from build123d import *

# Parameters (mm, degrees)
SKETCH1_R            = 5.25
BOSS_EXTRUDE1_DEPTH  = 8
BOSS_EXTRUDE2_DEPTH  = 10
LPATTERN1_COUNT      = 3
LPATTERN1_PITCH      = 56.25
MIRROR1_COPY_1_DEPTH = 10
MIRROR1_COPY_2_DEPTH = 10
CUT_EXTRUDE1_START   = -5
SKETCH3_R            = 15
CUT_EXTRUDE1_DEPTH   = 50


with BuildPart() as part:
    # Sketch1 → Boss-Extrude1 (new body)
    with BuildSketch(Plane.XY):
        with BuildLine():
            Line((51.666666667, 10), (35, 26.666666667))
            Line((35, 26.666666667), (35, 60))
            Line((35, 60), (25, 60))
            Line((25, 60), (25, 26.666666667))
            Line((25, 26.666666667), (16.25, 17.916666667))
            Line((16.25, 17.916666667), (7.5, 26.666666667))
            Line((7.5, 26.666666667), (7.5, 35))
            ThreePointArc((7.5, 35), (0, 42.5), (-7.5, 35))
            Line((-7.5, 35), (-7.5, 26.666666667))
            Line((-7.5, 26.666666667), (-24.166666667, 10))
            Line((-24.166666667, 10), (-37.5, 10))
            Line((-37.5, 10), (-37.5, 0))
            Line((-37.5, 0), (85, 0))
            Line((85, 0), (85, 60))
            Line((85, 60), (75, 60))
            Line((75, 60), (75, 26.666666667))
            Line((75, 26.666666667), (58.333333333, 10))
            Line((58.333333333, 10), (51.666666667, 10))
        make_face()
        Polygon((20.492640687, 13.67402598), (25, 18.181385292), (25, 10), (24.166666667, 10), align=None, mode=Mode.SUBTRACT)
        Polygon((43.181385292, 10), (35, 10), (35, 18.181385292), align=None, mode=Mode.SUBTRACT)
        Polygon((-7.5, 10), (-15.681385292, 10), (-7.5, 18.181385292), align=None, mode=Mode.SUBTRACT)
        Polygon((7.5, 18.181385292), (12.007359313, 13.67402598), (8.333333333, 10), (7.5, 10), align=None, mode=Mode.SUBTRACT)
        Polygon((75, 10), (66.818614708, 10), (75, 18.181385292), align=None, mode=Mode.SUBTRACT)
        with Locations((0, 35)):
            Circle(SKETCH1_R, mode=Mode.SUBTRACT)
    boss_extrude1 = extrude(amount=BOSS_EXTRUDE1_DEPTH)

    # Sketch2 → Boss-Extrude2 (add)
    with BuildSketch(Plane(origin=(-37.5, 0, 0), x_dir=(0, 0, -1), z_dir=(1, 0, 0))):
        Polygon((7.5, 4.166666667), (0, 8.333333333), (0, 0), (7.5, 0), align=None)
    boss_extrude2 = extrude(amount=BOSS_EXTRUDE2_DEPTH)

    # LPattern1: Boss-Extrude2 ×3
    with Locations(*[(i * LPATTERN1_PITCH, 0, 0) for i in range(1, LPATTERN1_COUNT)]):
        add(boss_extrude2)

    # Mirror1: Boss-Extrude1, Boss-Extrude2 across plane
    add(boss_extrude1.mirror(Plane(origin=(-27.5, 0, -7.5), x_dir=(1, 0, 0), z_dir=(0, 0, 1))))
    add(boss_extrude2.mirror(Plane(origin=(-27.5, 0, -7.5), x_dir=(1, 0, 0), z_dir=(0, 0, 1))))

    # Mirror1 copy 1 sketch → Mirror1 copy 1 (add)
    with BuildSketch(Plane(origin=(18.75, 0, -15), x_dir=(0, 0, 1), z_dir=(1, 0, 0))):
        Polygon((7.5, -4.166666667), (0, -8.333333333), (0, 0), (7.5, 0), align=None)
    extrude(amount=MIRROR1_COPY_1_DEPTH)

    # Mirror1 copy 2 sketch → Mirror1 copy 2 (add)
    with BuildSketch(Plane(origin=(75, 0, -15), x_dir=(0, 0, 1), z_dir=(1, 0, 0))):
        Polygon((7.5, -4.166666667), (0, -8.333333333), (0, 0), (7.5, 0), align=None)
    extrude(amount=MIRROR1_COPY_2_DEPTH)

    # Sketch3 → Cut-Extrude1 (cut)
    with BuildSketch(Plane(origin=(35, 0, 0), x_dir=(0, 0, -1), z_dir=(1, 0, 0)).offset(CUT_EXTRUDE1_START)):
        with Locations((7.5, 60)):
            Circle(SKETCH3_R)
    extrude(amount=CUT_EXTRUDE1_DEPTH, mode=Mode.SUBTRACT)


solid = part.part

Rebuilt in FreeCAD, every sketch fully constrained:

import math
import FreeCAD as App
import Part
import Sketcher
from FreeCAD import Vector
Q = App.Units.Quantity

doc = App.newDocument("Part")
body = doc.addObject("PartDesign::Body", "Body")

sketch1 = doc.addObject("Sketcher::SketchObject", "Sketch")
body.addObject(sketch1)
sketch1.AttachmentSupport = (doc.XY_Plane, [""])
sketch1.MapMode = "FlatFace"
sketch1.addGeometry([
    Part.LineSegment(Vector(51.7, 10, 0), Vector(35, 26.7, 0)),
    Part.LineSegment(Vector(35, 26.7, 0), Vector(35, 60, 0)),
    Part.LineSegment(Vector(35, 60, 0), Vector(25, 60, 0)),
    Part.LineSegment(Vector(25, 60, 0), Vector(25, 26.7, 0)),
    Part.LineSegment(Vector(25, 26.7, 0), Vector(16.2, 17.9, 0)),
    Part.LineSegment(Vector(16.2, 17.9, 0), Vector(7.5, 26.7, 0)),
    Part.LineSegment(Vector(7.5, 26.7, 0), Vector(7.5, 35, 0)),
    Part.ArcOfCircle(Part.Circle(Vector(0, 35, 0), Vector(0, 0, 1), 7.5), math.radians(0), math.radians(180)),
    Part.LineSegment(Vector(-7.5, 35, 0), Vector(-7.5, 26.7, 0)),
    Part.LineSegment(Vector(-7.5, 26.7, 0), Vector(-24.2, 10, 0)),
    Part.LineSegment(Vector(-24.2, 10, 0), Vector(-37.5, 10, 0)),
    Part.LineSegment(Vector(-37.5, 10, 0), Vector(-37.5, 0, 0)),
    Part.LineSegment(Vector(-37.5, 0, 0), Vector(85, 0, 0)),
    Part.LineSegment(Vector(85, 0, 0), Vector(85, 60, 0)),
    Part.LineSegment(Vector(85, 60, 0), Vector(75, 60, 0)),
    Part.LineSegment(Vector(75, 60, 0), Vector(75, 26.7, 0)),
    Part.LineSegment(Vector(75, 26.7, 0), Vector(58.3, 10, 0)),
    Part.LineSegment(Vector(58.3, 10, 0), Vector(51.7, 10, 0)),
    Part.LineSegment(Vector(-7.5, 18.2, 0), Vector(-7.5, 10, 0)),
    Part.LineSegment(Vector(-7.5, 10, 0), Vector(-15.7, 10, 0)),
    Part.LineSegment(Vector(-15.7, 10, 0), Vector(-7.5, 18.2, 0)),
    Part.LineSegment(Vector(7.5, 10, 0), Vector(7.5, 18.2, 0)),
    Part.LineSegment(Vector(7.5, 18.2, 0), Vector(12, 13.7, 0)),
    Part.LineSegment(Vector(12, 13.7, 0), Vector(8.3, 10, 0)),
    Part.LineSegment(Vector(8.3, 10, 0), Vector(7.5, 10, 0)),
    Part.LineSegment(Vector(24.2, 10, 0), Vector(20.5, 13.7, 0)),
    Part.LineSegment(Vector(20.5, 13.7, 0), Vector(25, 18.2, 0)),
    Part.LineSegment(Vector(25, 18.2, 0), Vector(25, 10, 0)),
    Part.LineSegment(Vector(25, 10, 0), Vector(24.2, 10, 0)),
    Part.LineSegment(Vector(35, 18.2, 0), Vector(43.2, 10, 0)),
    Part.LineSegment(Vector(43.2, 10, 0), Vector(35, 10, 0)),
    Part.LineSegment(Vector(35, 10, 0), Vector(35, 18.2, 0)),
    Part.LineSegment(Vector(75, 18.2, 0), Vector(75, 10, 0)),
    Part.LineSegment(Vector(75, 10, 0), Vector(66.8, 10, 0)),
    Part.LineSegment(Vector(66.8, 10, 0), Vector(75, 18.2, 0)),
    Part.Circle(Vector(0, 35, 0), Vector(0, 0, 1), 5.2),
], False)
sketch1.addConstraint([
    Sketcher.Constraint("Coincident", 0, 2, 1, 1),
    Sketcher.Constraint("Coincident", 1, 2, 2, 1),
    Sketcher.Constraint("Coincident", 2, 2, 3, 1),
    Sketcher.Constraint("Coincident", 3, 2, 4, 1),
    Sketcher.Constraint("Coincident", 4, 2, 5, 1),
    Sketcher.Constraint("Coincident", 5, 2, 6, 1),
    Sketcher.Constraint("Tangent", 6, 2, 7, 1),
    Sketcher.Constraint("Tangent", 7, 2, 8, 1),
    Sketcher.Constraint("Coincident", 8, 2, 9, 1),
    Sketcher.Constraint("Coincident", 9, 2, 10, 1),
    Sketcher.Constraint("Coincident", 10, 2, 11, 1),
    Sketcher.Constraint("Coincident", 11, 2, 12, 1),
    Sketcher.Constraint("Coincident", 12, 2, 13, 1),
    Sketcher.Constraint("Coincident", 13, 2, 14, 1),
    Sketcher.Constraint("Coincident", 14, 2, 15, 1),
    Sketcher.Constraint("Coincident", 15, 2, 16, 1),
    Sketcher.Constraint("Coincident", 16, 2, 17, 1),
    Sketcher.Constraint("Coincident", 17, 2, 0, 1),
    Sketcher.Constraint("Coincident", 18, 2, 19, 1),
    Sketcher.Constraint("Coincident", 19, 2, 20, 1),
    Sketcher.Constraint("Coincident", 20, 2, 18, 1),
    Sketcher.Constraint("Coincident", 21, 2, 22, 1),
    Sketcher.Constraint("Coincident", 22, 2, 23, 1),
    Sketcher.Constraint("Coincident", 23, 2, 24, 1),
    Sketcher.Constraint("Coincident", 24, 2, 21, 1),
    Sketcher.Constraint("Coincident", 25, 2, 26, 1),
    Sketcher.Constraint("Coincident", 26, 2, 27, 1),
    Sketcher.Constraint("Coincident", 27, 2, 28, 1),
    Sketcher.Constraint("Coincident", 28, 2, 25, 1),
    Sketcher.Constraint("Coincident", 29, 2, 30, 1),
    Sketcher.Constraint("Coincident", 30, 2, 31, 1),
    Sketcher.Constraint("Coincident", 31, 2, 29, 1),
    Sketcher.Constraint("Coincident", 32, 2, 33, 1),
    Sketcher.Constraint("Coincident", 33, 2, 34, 1),
    Sketcher.Constraint("Coincident", 34, 2, 32, 1),
    Sketcher.Constraint("Vertical", 1),
    Sketcher.Constraint("Horizontal", 2),
    Sketcher.Constraint("Vertical", 3),
    Sketcher.Constraint("Vertical", 6),
    Sketcher.Constraint("Vertical", 8),
    Sketcher.Constraint("Horizontal", 10),
    Sketcher.Constraint("Vertical", 11),
    Sketcher.Constraint("Horizontal", 12),
    Sketcher.Constraint("Vertical", 13),
    Sketcher.Constraint("Horizontal", 14),
    Sketcher.Constraint("Vertical", 15),
    Sketcher.Constraint("Horizontal", 17),
    Sketcher.Constraint("Vertical", 18),
    Sketcher.Constraint("Horizontal", 19),
    Sketcher.Constraint("Vertical", 21),
    Sketcher.Constraint("Horizontal", 24),
    Sketcher.Constraint("Vertical", 27),
    Sketcher.Constraint("Horizontal", 28),
    Sketcher.Constraint("Horizontal", 30),
    Sketcher.Constraint("Vertical", 31),
    Sketcher.Constraint("Vertical", 32),
    Sketcher.Constraint("Horizontal", 33),
    Sketcher.Constraint("Coincident", 35, 3, 7, 3),
    Sketcher.Constraint("Symmetric", 5, 2, 8, 2, -2),
    Sketcher.Constraint("Symmetric", 20, 2, 21, 2, -2),
    Sketcher.Constraint("Symmetric", 9, 2, 28, 2, -2),
    Sketcher.Constraint("PointOnObject", 11, 2, -1),
    Sketcher.Constraint("Perpendicular", 0, 4),
    Sketcher.Constraint("Perpendicular", 4, 5),
    Sketcher.Constraint("Perpendicular", 5, 9),
    Sketcher.Constraint("Parallel", 9, 16),
    Sketcher.Constraint("Parallel", 16, 20),
    Sketcher.Constraint("Perpendicular", 20, 22),
    Sketcher.Constraint("Perpendicular", 22, 23),
    Sketcher.Constraint("Perpendicular", 23, 25),
    Sketcher.Constraint("Perpendicular", 25, 26),
    Sketcher.Constraint("Perpendicular", 26, 29),
    Sketcher.Constraint("Perpendicular", 29, 34),
    Sketcher.Constraint("Horizontal", 0, 2, 3, 2),
    Sketcher.Constraint("Horizontal", 3, 2, 5, 2),
    Sketcher.Constraint("Horizontal", 2, 2, 13, 2),
    Sketcher.Constraint("Horizontal", 8, 2, 15, 2),
    Sketcher.Constraint("Horizontal", 10, 2, 16, 2),
    Sketcher.Constraint("Horizontal", 17, 2, 18, 2),
    Sketcher.Constraint("Horizontal", 19, 2, 23, 2),
    Sketcher.Constraint("Horizontal", 22, 2, 25, 2),
    Sketcher.Constraint("Horizontal", 21, 2, 26, 2),
    Sketcher.Constraint("Horizontal", 28, 2, 29, 2),
    Sketcher.Constraint("Horizontal", 26, 2, 31, 2),
    Sketcher.Constraint("Horizontal", 30, 2, 32, 2),
    Sketcher.Constraint("Horizontal", 31, 2, 34, 2),
    Sketcher.Constraint("Vertical", 8, 2, 18, 2),
    Sketcher.Constraint("Vertical", 3, 2, 26, 2),
    Sketcher.Constraint("Vertical", 1, 2, 30, 2),
    Sketcher.Constraint("Vertical", 15, 2, 32, 2),
    Sketcher.Constraint("Equal", 2, 14),
    Sketcher.Constraint("Equal", 24, 28),
    Sketcher.Constraint("Equal", 14, 11),
    Sketcher.Constraint("Diameter", 35, Q("10.5 mm")),
    Sketcher.Constraint("Radius", 7, Q("7.5 mm")),
    Sketcher.Constraint("DistanceX", 2, 2, 2, 1, Q("10 mm")),
    Sketcher.Constraint("DistanceY", 13, 1, 13, 2, Q("60 mm")),
    Sketcher.Constraint("DistanceX", 12, 1, 12, 2, Q("122.5 mm")),
    Sketcher.Constraint("DistanceY", -1, 1, 7, 3, Q("35 mm")),
    Sketcher.Constraint("DistanceX", -1, 1, 0, 2, Q("35 mm")),
    Sketcher.Constraint("DistanceX", -1, 1, 12, 2, Q("85 mm")),
    Sketcher.Constraint("Distance", 22, Q("6.374369 mm")),
    Sketcher.Constraint("DistanceX", 10, 2, 10, 1, Q("13.333333 mm")),
])
pad1 = doc.addObject("PartDesign::Pad", "Pad")
body.addObject(pad1)
pad1.Profile = sketch1
pad1.Length = 8

sketch2 = doc.addObject("Sketcher::SketchObject", "Sketch001")
body.addObject(sketch2)
sketch2.AttachmentSupport = (doc.YZ_Plane, [""])
sketch2.MapMode = "FlatFace"
sketch2.AttachmentOffset = App.Placement(Vector(0, 0, -37.5), App.Rotation())
sketch2.addGeometry([
    Part.LineSegment(Vector(4.2, -7.5, 0), Vector(8.3, 0, 0)),
    Part.LineSegment(Vector(8.3, 0, 0), Vector(0, 0, 0)),
    Part.LineSegment(Vector(0, 0, 0), Vector(0, -7.5, 0)),
    Part.LineSegment(Vector(0, -7.5, 0), Vector(4.2, -7.5, 0)),
], False)
sketch2.addConstraint([
    Sketcher.Constraint("Coincident", 0, 2, 1, 1),
    Sketcher.Constraint("Coincident", 1, 2, 2, 1),
    Sketcher.Constraint("Coincident", 2, 2, 3, 1),
    Sketcher.Constraint("Coincident", 3, 2, 0, 1),
    Sketcher.Constraint("Horizontal", 1),
    Sketcher.Constraint("Vertical", 2),
    Sketcher.Constraint("Horizontal", 3),
    Sketcher.Constraint("Coincident", 1, 2, -1, 1),
    Sketcher.Constraint("DistanceY", 2, 2, 2, 1, Q("7.5 mm")),
    Sketcher.Constraint("Distance", 0, Q("8.579692 mm")),
    Sketcher.Constraint("DistanceX", 1, 2, 1, 1, Q("8.333333 mm")),
])
pad2 = doc.addObject("PartDesign::Pad", "Pad001")
body.addObject(pad2)
pad2.Profile = sketch2
pad2.Length = 10
doc.recompute()

linearpattern = doc.addObject("PartDesign::LinearPattern", "LinearPattern")
body.addObject(linearpattern)
linearpattern.Originals = [pad2]
linearpattern.Direction = (doc.X_Axis, [""])
linearpattern.Mode = "offset"
linearpattern.Offset = 56.25
linearpattern.Occurrences = 3
body.Tip = linearpattern
doc.recompute()

datumplane = doc.addObject("PartDesign::Plane", "DatumPlane")
body.addObject(datumplane)
datumplane.AttachmentSupport = (doc.XY_Plane, [""])
datumplane.MapMode = "FlatFace"
datumplane.AttachmentOffset = App.Placement(Vector(0, 0, -7.5), App.Rotation())
mirrored = doc.addObject("PartDesign::Mirrored", "Mirrored")
body.addObject(mirrored)
mirrored.Originals = [pad1, pad2]
mirrored.MirrorPlane = (datumplane, [""])
body.Tip = mirrored

sketch3 = doc.addObject("Sketcher::SketchObject", "Sketch002")
body.addObject(sketch3)
sketch3.AttachmentSupport = (doc.YZ_Plane, [""])
sketch3.MapMode = "FlatFace"
sketch3.AttachmentOffset = App.Placement(Vector(0, 0, 18.75), App.Rotation())
sketch3.addGeometry([
    Part.LineSegment(Vector(8.3, -15, 0), Vector(4.2, -7.5, 0)),
    Part.LineSegment(Vector(4.2, -7.5, 0), Vector(0, -7.5, 0)),
    Part.LineSegment(Vector(0, -7.5, 0), Vector(0, -15, 0)),
    Part.LineSegment(Vector(0, -15, 0), Vector(8.3, -15, 0)),
], False)
sketch3.addConstraint([
    Sketcher.Constraint("Coincident", 0, 2, 1, 1),
    Sketcher.Constraint("Coincident", 1, 2, 2, 1),
    Sketcher.Constraint("Coincident", 2, 2, 3, 1),
    Sketcher.Constraint("Coincident", 3, 2, 0, 1),
    Sketcher.Constraint("Horizontal", 1),
    Sketcher.Constraint("Vertical", 2),
    Sketcher.Constraint("Horizontal", 3),
    Sketcher.Constraint("PointOnObject", 1, 2, -2),
    Sketcher.Constraint("DistanceY", 2, 2, 2, 1, Q("7.5 mm")),
    Sketcher.Constraint("DistanceY", 2, 2, -1, 1, Q("15 mm")),
    Sketcher.Constraint("Distance", 0, Q("8.579692 mm")),
    Sketcher.Constraint("DistanceX", 1, 2, 1, 1, Q("4.166667 mm")),
])
pad3 = doc.addObject("PartDesign::Pad", "Pad002")
body.addObject(pad3)
pad3.Profile = sketch3
pad3.Length = 10

sketch4 = doc.addObject("Sketcher::SketchObject", "Sketch003")
body.addObject(sketch4)
sketch4.AttachmentSupport = (doc.YZ_Plane, [""])
sketch4.MapMode = "FlatFace"
sketch4.AttachmentOffset = App.Placement(Vector(0, 0, 75), App.Rotation())
sketch4.addGeometry([
    Part.LineSegment(Vector(8.3, -15, 0), Vector(4.2, -7.5, 0)),
    Part.LineSegment(Vector(4.2, -7.5, 0), Vector(0, -7.5, 0)),
    Part.LineSegment(Vector(0, -7.5, 0), Vector(0, -15, 0)),
    Part.LineSegment(Vector(0, -15, 0), Vector(8.3, -15, 0)),
], False)
sketch4.addConstraint([
    Sketcher.Constraint("Coincident", 0, 2, 1, 1),
    Sketcher.Constraint("Coincident", 1, 2, 2, 1),
    Sketcher.Constraint("Coincident", 2, 2, 3, 1),
    Sketcher.Constraint("Coincident", 3, 2, 0, 1),
    Sketcher.Constraint("Horizontal", 1),
    Sketcher.Constraint("Vertical", 2),
    Sketcher.Constraint("Horizontal", 3),
    Sketcher.Constraint("PointOnObject", 1, 2, -2),
    Sketcher.Constraint("DistanceY", 2, 2, 2, 1, Q("7.5 mm")),
    Sketcher.Constraint("DistanceY", 2, 2, -1, 1, Q("15 mm")),
    Sketcher.Constraint("Distance", 0, Q("8.579692 mm")),
    Sketcher.Constraint("DistanceX", 1, 2, 1, 1, Q("4.166667 mm")),
])
pad4 = doc.addObject("PartDesign::Pad", "Pad003")
body.addObject(pad4)
pad4.Profile = sketch4
pad4.Length = 10

sketch5 = doc.addObject("Sketcher::SketchObject", "Sketch004")
body.addObject(sketch5)
sketch5.AttachmentSupport = (doc.YZ_Plane, [""])
sketch5.MapMode = "FlatFace"
sketch5.AttachmentOffset = App.Placement(Vector(0, 0, 30), App.Rotation())
sketch5.addGeometry(Part.Circle(Vector(60, -8, 0), Vector(0, 0, 1), 15), False)
sketch5.addConstraint([
    Sketcher.Constraint("Diameter", 0, Q("30 mm")),
    Sketcher.Constraint("DistanceX", -1, 1, 0, 3, Q("60 mm")),
    Sketcher.Constraint("DistanceY", 0, 3, -1, 1, Q("7.5 mm")),
])
pocket1 = doc.addObject("PartDesign::Pocket", "Pocket")
body.addObject(pocket1)
pocket1.Profile = sketch5
pocket1.Length = 50
pocket1.Reversed = True

doc.recompute()
